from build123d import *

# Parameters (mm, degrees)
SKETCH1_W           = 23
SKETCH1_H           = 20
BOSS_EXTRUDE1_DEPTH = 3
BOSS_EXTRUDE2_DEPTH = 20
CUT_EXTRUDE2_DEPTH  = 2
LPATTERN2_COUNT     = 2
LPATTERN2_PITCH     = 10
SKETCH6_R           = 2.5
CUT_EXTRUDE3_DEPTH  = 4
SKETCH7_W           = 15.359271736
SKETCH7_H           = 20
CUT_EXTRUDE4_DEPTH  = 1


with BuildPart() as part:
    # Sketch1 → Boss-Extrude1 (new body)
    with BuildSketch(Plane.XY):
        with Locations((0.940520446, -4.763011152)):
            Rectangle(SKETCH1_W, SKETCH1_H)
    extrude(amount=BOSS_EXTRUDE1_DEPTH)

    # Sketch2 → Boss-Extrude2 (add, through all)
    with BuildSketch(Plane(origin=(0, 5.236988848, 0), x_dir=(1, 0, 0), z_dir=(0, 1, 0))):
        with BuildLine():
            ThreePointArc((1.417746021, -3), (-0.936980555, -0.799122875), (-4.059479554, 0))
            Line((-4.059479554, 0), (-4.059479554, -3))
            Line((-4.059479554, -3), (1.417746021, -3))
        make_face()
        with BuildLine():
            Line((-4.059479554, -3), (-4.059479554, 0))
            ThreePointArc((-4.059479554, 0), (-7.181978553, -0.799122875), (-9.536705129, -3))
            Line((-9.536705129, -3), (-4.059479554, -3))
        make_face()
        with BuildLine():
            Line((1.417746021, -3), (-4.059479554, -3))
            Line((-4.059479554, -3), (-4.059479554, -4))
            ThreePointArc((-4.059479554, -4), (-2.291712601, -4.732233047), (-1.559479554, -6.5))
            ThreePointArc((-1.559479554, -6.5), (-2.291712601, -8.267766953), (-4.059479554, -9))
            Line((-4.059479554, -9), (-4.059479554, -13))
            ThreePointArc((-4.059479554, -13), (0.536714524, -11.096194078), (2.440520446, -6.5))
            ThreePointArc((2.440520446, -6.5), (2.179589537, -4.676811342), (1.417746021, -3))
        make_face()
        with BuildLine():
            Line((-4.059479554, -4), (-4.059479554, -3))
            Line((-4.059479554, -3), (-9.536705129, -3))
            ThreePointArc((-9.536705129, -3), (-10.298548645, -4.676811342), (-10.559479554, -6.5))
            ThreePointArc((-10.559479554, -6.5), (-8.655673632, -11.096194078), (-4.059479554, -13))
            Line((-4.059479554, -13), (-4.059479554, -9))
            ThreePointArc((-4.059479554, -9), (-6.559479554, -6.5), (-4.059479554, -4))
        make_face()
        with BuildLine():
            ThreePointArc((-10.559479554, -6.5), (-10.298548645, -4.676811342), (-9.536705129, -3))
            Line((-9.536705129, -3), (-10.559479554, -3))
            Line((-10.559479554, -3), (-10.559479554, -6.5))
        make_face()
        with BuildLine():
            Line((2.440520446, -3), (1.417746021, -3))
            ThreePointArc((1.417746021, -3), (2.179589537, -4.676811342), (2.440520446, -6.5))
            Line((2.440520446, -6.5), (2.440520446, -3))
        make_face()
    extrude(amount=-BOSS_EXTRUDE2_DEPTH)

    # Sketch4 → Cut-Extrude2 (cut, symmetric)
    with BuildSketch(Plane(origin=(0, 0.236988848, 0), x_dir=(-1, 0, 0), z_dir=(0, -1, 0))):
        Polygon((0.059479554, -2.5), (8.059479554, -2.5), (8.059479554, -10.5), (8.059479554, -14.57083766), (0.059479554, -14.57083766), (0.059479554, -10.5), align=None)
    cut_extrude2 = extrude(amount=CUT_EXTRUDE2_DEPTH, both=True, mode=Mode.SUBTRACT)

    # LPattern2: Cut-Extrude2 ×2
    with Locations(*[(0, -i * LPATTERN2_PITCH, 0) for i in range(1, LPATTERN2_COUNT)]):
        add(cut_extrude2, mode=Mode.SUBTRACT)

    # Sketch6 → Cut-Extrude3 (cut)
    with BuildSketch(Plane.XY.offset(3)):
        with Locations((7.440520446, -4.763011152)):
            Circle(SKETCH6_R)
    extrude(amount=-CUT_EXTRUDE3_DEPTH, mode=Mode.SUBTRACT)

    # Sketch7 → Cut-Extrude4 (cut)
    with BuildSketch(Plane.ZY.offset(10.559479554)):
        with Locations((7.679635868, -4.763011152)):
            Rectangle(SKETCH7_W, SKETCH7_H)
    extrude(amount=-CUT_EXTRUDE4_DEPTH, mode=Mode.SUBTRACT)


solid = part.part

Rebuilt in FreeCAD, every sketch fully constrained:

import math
import FreeCAD as App
import Part
import Sketcher

V = App.Vector


def add_polygon(sketch, points):
    """Adds a closed chain of lines whose ends are joined by coincident constraints."""
    first, n = sketch.GeometryCount, len(points)
    for a, b in zip(points, points[1:] + points[:1]):
        sketch.addGeometry(Part.LineSegment(App.Vector(*a, 0), App.Vector(*b, 0)), False)
    for i in range(n):
        sketch.addConstraint(Sketcher.Constraint("Coincident", first + i, 2, first + (i + 1) % n, 1))

doc = App.newDocument("Part")
body = doc.addObject("PartDesign::Body", "Body")

sketch1 = doc.addObject("Sketcher::SketchObject", "Sketch")
body.addObject(sketch1)
sketch1.AttachmentSupport = (doc.XY_Plane, [""])
sketch1.MapMode = "FlatFace"
add_polygon(sketch1, [(-11, 5), (-11, -15), (12, -15), (12, 5)])
sketch1.addConstraint([
    Sketcher.Constraint("Vertical", 0),
    Sketcher.Constraint("Horizontal", 1),
    Sketcher.Constraint("Vertical", 2),
    Sketcher.Constraint("Horizontal", 3),
    Sketcher.Constraint("DistanceX", 1, 1, 1, 2, 23.0),
    Sketcher.Constraint("DistanceY", 0, 2, 0, 1, 20.0),
    Sketcher.Constraint("DistanceX", 0, 2, -1, 1, 10.55948),
    Sketcher.Constraint("DistanceY", 0, 2, -1, 1, 14.763011),
])
pad1 = doc.addObject("PartDesign::Pad", "Pad")
body.addObject(pad1)
pad1.Profile = sketch1
pad1.Length = 3

sketch2 = doc.addObject("Sketcher::SketchObject", "Sketch001")
body.addObject(sketch2)
sketch2.AttachmentSupport = (doc.XZ_Plane, [""])
sketch2.MapMode = "FlatFace"
sketch2.AttachmentOffset = App.Placement(V(0, 0, -5.236989), App.Rotation())
sketch2.addGeometry([
    Part.ArcOfCircle(Part.Circle(V(-4.1, 6.5, 0), V(0, 0, 1), 6.5), math.radians(-90), math.radians(-33)),
    Part.ArcOfCircle(Part.Circle(V(-4.1, 6.5, 0), V(0, 0, 1), 6.5), math.radians(-147), math.radians(-90)),
    Part.LineSegment(V(-9.5, 3, 0), V(-10.6, 3, 0)),
    Part.LineSegment(V(-10.6, 3, 0), V(-10.6, 6.5, 0)),
    Part.ArcOfCircle(Part.Circle(V(-4.1, 6.5, 0), V(0, 0, 1), 6.5), math.radians(90), math.radians(180)),
    Part.ArcOfCircle(Part.Circle(V(-4.1, 6.5, 0), V(0, 0, 1), 6.5), math.radians(0), math.radians(90)),
    Part.LineSegment(V(2.4, 6.5, 0), V(2.4, 3, 0)),
    Part.LineSegment(V(2.4, 3, 0), V(1.4, 3, 0)),
    Part.ArcOfCircle(Part.Circle(V(-4.1, 6.5, 0), V(0, 0, 1), 2.5), math.radians(90), math.radians(270)),
    Part.ArcOfCircle(Part.Circle(V(-4.1, 6.5, 0), V(0, 0, 1), 2.5), math.radians(-90), math.radians(0)),
    Part.ArcOfCircle(Part.Circle(V(-4.1, 6.5, 0), V(0, 0, 1), 2.5), math.radians(0), math.radians(90)),
], False)
sketch2.addConstraint([
    Sketcher.Constraint("Tangent", 0, 1, 1, 2),
    Sketcher.Constraint("Coincident", 1, 1, 2, 1),
    Sketcher.Constraint("Coincident", 2, 2, 3, 1),
    Sketcher.Constraint("Tangent", 3, 2, 4, 2),
    Sketcher.Constraint("Tangent", 4, 1, 5, 2),
    Sketcher.Constraint("Tangent", 5, 1, 6, 1),
    Sketcher.Constraint("Coincident", 6, 2, 7, 1),
    Sketcher.Constraint("Coincident", 7, 2, 0, 2),
    Sketcher.Constraint("Tangent", 8, 2, 9, 1),
    Sketcher.Constraint("Tangent", 9, 2, 10, 1),
    Sketcher.Constraint("Tangent", 10, 2, 8, 1),
    Sketcher.Constraint("Horizontal", 2),
    Sketcher.Constraint("Vertical", 3),
    Sketcher.Constraint("Vertical", 6),
    Sketcher.Constraint("Horizontal", 7),
    Sketcher.Constraint("Coincident", 4, 3, 0, 3),
    Sketcher.Constraint("Coincident", 8, 3, 0, 3),
    Sketcher.Constraint("Equal", 0, 1),
    Sketcher.Constraint("Equal", 1, 4),
    Sketcher.Constraint("Equal", 4, 5),
    Sketcher.Constraint("PointOnObject", 0, 1, -1),
    Sketcher.Constraint("Horizontal", 2, 2, 6, 2),
    Sketcher.Constraint("Horizontal", 5, 1, 9, 2),
    Sketcher.Constraint("Vertical", 10, 3, 0, 1),
    Sketcher.Constraint("Vertical", 0, 1, 4, 1),
    Sketcher.Constraint("Vertical", 4, 1, 8, 2),
    Sketcher.Constraint("Vertical", 8, 2, 10, 2),
    Sketcher.Constraint("Radius", 0, 6.5),
    Sketcher.Constraint("Radius", 8, 2.5),
    Sketcher.Constraint("DistanceY", 3, 1, 3, 2, 3.5),
    Sketcher.Constraint("DistanceX", 0, 3, -1, 1, 4.05948),
])
pad2 = doc.addObject("PartDesign::Pad", "Pad001")
body.addObject(pad2)
pad2.Profile = sketch2
pad2.Length = 20

sketch3 = doc.addObject("Sketcher::SketchObject", "Sketch002")
body.addObject(sketch3)
sketch3.AttachmentSupport = (doc.XZ_Plane, [""])
sketch3.MapMode = "FlatFace"
sketch3.AttachmentOffset = App.Placement(V(0, 0, -0.236989), App.Rotation())
add_polygon(sketch3, [(-8, 2), (0, 2), (0, 15), (-8, 15)])
sketch3.addConstraint([
    Sketcher.Constraint("Horizontal", 0),
    Sketcher.Constraint("Vertical", 1),
    Sketcher.Constraint("Horizontal", 2),
    Sketcher.Constraint("Vertical", 3),
    Sketcher.Constraint("DistanceX", 0, 1, 0, 2, 8.0),
    Sketcher.Constraint("DistanceY", -1, 1, 0, 2, 2.5),
    Sketcher.Constraint("DistanceY", 1, 1, 1, 2, 12.070838),
    Sketcher.Constraint("DistanceX", 0, 2, -1, 1, 0.05948),
])
pocket1 = doc.addObject("PartDesign::Pocket", "Pocket")
body.addObject(pocket1)
pocket1.Profile = sketch3
pocket1.Length = 4
pocket1.Midplane = True
doc.recompute()

linearpattern = doc.addObject("PartDesign::LinearPattern", "LinearPattern")
body.addObject(linearpattern)
linearpattern.Originals = [pocket1]
linearpattern.Direction = (doc.Y_Axis, [""])
linearpattern.Mode = "offset"
linearpattern.Offset = 10
linearpattern.Occurrences = 2
linearpattern.Reversed = True
body.Tip = linearpattern

sketch4 = doc.addObject("Sketcher::SketchObject", "Sketch003")
body.addObject(sketch4)
sketch4.AttachmentSupport = (doc.XY_Plane, [""])
sketch4.MapMode = "FlatFace"
sketch4.AttachmentOffset = App.Placement(V(0, 0, 3), App.Rotation())
sketch4.addGeometry(Part.Circle(V(7.4, -4.8, 0), V(0, 0, 1), 2.5), False)
sketch4.addConstraint([
    Sketcher.Constraint("Diameter", 0, 5.0),
    Sketcher.Constraint("DistanceX", -1, 1, 0, 3, 7.44052),
    Sketcher.Constraint("DistanceY", 0, 3, -1, 1, 4.763011),
])
pocket2 = doc.addObject("PartDesign::Pocket", "Pocket001")
body.addObject(pocket2)
pocket2.Profile = sketch4
pocket2.Length = 4

sketch5 = doc.addObject("Sketcher::SketchObject", "Sketch004")
body.addObject(sketch5)
sketch5.AttachmentSupport = (doc.YZ_Plane, [""])
sketch5.MapMode = "FlatFace"
sketch5.AttachmentOffset = App.Placement(V(0, 0, -10.55948), App.Rotation())
add_polygon(sketch5, [(5, 0), (-15, 0), (-15, 15), (5, 15)])
sketch5.addConstraint([
    Sketcher.Constraint("Horizontal", 0),
    Sketcher.Constraint("Vertical", 1),
    Sketcher.Constraint("Horizontal", 2),
    Sketcher.Constraint("Vertical", 3),
    Sketcher.Constraint("PointOnObject", 0, 2, -1),
    Sketcher.Constraint("DistanceX", 0, 2, 0, 1, 20.0),
    Sketcher.Constraint("DistanceY", 1, 1, 1, 2, 15.359272),
    Sketcher.Constraint("DistanceX", 0, 2, -1, 1, 14.763011),
])
pocket3 = doc.addObject("PartDesign::Pocket", "Pocket002")
body.addObject(pocket3)
pocket3.Profile = sketch5
pocket3.Length = 1
pocket3.Reversed = True

doc.recompute()
